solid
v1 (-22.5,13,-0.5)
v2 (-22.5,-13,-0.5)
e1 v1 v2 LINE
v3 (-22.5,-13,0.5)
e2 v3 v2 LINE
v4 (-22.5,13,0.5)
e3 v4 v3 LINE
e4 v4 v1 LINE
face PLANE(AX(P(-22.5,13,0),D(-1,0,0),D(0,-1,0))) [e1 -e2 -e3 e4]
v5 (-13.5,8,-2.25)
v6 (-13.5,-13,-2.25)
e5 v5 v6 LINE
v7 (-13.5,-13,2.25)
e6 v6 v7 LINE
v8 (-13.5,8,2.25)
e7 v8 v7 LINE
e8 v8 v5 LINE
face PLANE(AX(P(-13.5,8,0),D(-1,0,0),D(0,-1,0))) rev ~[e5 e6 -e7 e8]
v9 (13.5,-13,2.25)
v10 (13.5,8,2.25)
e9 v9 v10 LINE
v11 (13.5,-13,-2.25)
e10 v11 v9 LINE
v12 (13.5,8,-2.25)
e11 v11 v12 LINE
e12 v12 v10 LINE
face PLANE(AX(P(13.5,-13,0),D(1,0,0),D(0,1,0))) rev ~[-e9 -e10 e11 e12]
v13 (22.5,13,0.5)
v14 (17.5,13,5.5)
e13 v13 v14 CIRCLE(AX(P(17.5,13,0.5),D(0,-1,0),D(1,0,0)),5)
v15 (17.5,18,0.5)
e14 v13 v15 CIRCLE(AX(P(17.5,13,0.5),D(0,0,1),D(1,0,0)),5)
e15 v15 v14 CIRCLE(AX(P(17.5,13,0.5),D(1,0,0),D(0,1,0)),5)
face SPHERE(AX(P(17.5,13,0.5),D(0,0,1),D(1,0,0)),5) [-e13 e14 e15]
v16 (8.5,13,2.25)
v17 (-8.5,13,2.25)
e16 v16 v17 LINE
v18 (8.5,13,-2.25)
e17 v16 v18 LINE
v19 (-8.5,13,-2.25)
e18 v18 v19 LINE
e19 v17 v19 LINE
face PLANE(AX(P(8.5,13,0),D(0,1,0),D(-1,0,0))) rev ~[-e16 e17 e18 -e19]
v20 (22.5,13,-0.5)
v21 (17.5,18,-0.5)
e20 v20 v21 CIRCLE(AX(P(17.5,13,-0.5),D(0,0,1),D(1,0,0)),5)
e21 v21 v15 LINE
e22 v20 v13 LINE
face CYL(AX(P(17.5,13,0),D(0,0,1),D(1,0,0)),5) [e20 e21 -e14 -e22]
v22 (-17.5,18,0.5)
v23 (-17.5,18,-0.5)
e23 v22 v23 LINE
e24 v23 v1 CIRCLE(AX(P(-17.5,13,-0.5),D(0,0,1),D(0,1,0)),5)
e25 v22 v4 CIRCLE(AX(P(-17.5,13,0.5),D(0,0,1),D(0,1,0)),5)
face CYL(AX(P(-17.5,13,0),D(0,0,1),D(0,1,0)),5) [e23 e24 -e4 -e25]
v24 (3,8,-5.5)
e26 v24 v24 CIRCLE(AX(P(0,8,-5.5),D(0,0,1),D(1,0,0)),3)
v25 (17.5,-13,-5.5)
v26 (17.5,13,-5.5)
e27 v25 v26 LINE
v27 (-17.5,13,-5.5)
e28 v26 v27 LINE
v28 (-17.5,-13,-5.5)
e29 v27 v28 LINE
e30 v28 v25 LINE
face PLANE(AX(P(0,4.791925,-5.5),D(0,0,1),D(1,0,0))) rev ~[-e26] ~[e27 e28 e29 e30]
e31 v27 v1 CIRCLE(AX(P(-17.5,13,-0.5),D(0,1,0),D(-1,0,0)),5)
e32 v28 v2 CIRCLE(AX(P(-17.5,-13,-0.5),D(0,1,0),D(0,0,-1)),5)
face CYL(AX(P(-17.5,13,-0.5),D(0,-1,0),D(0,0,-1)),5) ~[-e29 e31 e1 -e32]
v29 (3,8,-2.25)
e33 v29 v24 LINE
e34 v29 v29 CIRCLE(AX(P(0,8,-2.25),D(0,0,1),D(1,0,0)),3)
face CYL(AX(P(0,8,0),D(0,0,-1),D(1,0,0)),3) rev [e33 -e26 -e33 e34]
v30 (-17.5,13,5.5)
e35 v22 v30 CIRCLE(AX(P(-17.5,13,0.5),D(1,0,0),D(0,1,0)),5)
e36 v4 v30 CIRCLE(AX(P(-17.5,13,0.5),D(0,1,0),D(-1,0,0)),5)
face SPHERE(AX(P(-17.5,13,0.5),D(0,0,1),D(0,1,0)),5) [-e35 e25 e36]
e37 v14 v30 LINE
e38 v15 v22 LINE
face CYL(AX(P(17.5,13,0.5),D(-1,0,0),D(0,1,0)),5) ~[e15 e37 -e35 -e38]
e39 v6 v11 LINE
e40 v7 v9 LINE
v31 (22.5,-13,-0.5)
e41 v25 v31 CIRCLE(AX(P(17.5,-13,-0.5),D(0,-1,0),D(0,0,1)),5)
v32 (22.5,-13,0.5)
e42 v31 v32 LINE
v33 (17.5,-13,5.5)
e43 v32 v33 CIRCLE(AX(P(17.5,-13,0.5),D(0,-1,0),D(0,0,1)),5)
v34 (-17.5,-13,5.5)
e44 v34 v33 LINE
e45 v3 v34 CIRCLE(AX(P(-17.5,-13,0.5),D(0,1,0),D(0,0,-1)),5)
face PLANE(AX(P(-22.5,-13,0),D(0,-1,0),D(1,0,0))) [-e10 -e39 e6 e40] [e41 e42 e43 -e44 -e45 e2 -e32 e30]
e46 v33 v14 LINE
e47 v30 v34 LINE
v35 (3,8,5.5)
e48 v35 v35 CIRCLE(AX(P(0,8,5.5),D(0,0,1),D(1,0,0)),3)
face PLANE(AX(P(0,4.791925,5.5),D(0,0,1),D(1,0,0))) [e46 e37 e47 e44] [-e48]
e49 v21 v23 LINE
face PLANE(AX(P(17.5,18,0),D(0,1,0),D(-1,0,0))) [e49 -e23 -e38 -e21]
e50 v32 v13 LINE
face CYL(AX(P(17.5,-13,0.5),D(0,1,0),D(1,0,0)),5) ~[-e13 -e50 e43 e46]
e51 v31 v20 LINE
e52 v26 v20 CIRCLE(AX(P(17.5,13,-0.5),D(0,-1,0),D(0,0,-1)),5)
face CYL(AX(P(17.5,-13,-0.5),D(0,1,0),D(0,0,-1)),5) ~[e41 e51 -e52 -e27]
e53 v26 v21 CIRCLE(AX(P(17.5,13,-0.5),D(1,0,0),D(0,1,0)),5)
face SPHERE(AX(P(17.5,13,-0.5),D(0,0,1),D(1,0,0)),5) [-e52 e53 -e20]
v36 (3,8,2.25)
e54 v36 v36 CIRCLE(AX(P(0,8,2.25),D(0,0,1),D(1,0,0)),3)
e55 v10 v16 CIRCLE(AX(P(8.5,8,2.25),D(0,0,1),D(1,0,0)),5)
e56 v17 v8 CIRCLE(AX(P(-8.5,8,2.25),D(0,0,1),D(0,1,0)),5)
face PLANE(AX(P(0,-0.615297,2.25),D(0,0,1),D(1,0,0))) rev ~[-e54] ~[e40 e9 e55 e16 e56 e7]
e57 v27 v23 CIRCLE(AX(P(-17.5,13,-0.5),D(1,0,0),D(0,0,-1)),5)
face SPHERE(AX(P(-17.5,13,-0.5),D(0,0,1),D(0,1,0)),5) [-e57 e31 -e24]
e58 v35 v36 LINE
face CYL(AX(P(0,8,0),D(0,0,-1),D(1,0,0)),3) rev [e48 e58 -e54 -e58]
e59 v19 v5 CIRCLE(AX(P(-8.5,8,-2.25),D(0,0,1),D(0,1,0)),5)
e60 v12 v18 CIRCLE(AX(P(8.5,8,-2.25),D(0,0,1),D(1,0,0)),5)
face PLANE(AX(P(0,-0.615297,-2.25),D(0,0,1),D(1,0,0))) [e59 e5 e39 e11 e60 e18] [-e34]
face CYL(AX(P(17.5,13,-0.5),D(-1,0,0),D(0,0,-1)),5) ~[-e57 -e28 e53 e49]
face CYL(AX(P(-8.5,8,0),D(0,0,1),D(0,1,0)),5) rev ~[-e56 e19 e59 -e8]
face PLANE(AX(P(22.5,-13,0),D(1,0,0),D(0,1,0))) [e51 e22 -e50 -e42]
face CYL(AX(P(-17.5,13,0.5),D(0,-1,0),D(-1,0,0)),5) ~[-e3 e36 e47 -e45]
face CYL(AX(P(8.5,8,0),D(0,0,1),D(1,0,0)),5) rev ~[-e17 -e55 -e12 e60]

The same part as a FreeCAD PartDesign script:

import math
import FreeCAD as App
import Part
import Sketcher

V = App.Vector


def edges_at(feature, points):
    """Names of the edges that pass closest to the given points."""
    edges = feature.Shape.Edges
    near = lambda p: min(range(len(edges)), key=lambda i: edges[i].distToShape(Part.Vertex(*p))[0])
    return sorted({f"Edge{near(p) + 1}" for p in points})

doc = App.newDocument("Part")
params = doc.addObject("Spreadsheet::Sheet", "Params")
for row, (alias, value) in enumerate([
    ("sketch1_diameter", "6 mm"),
    ("sketch1_radius", "5 mm"),
    ("sketch1_width", "45 mm"),
    ("sketch1_height", "26 mm"),
    ("pad1_length", "11 mm"),
    ("sketch2_diameter", "6 mm"),
    ("sketch2_radius", "5 mm"),
    ("sketch2_width", "27 mm"),
    ("sketch2_height", "21 mm"),
    ("pocket1_length", "4.5 mm"),
    ("fillet_radius", "5 mm"),
], start=1):
    params.set(f"A{row}", alias)
    params.set(f"B{row}", "=" + value)
    params.setAlias(f"B{row}", alias)

body = doc.addObject("PartDesign::Body", "Body")

# Sketch on XY plane
sketch1 = body.newObject("Sketcher::SketchObject", "Sketch")
sketch1.AttachmentSupport = (doc.getObject("XY_Plane"), [""])
sketch1.MapMode = "FlatFace"
sketch1.addGeometry([
    Part.LineSegment(V(-22.5, -13, 0), V(22.5, -13, 0)),  # 0
    Part.LineSegment(V(22.5, -13, 0), V(22.5, 13, 0)),  # 1
    Part.ArcOfCircle(Part.Circle(V(17.5, 13, 0), V(0, 0, 1), 5), math.radians(0), math.radians(90)),  # 2
    Part.LineSegment(V(17.5, 18, 0), V(-17.5, 18, 0)),  # 3
    Part.ArcOfCircle(Part.Circle(V(-17.5, 13, 0), V(0, 0, 1), 5), math.radians(90), math.radians(180)),  # 4
    Part.LineSegment(V(-22.5, 13, 0), V(-22.5, -13, 0)),  # 5
    Part.Circle(V(0, 8, 0), V(0, 0, 1), 3),  # 6
], False)
sketch1.addConstraint([
    Sketcher.Constraint("Coincident", 0, 2, 1, 1),
    Sketcher.Constraint("Tangent", 1, 2, 2, 1),
    Sketcher.Constraint("Tangent", 2, 2, 3, 1),
    Sketcher.Constraint("Tangent", 3, 2, 4, 1),
    Sketcher.Constraint("Tangent", 4, 2, 5, 1),
    Sketcher.Constraint("Coincident", 5, 2, 0, 1),
    Sketcher.Constraint("Horizontal", 0),
    Sketcher.Constraint("Vertical", 1),
    Sketcher.Constraint("Horizontal", 3),
    Sketcher.Constraint("Vertical", 5),
    Sketcher.Constraint("Equal", 2, 4),
    Sketcher.Constraint("Symmetric", 0, 2, 4, 2, -1, 1),
    Sketcher.Constraint("PointOnObject", 6, 3, -2),
    Sketcher.Constraint("Diameter", 6, 6.0),
    Sketcher.Constraint("Radius", 2, 5.0),
    Sketcher.Constraint("DistanceX", 0, 1, 0, 2, 45.0),
    Sketcher.Constraint("DistanceY", 1, 1, 1, 2, 26.0),
    Sketcher.Constraint("DistanceY", -1, 1, 6, 3, 8.0),
])
sketch1.setExpression("Constraints[13]", "Params.sketch1_diameter")
sketch1.setExpression("Constraints[14]", "Params.sketch1_radius")
sketch1.setExpression("Constraints[15]", "Params.sketch1_width")
sketch1.setExpression("Constraints[16]", "Params.sketch1_height")
pad1 = body.newObject("PartDesign::Pad", "Pad")
pad1.Profile = sketch1
pad1.setExpression("Length", "Params.pad1_length")
pad1.Midplane = True

# Sketch on XY plane
sketch2 = body.newObject("Sketcher::SketchObject", "Sketch001")
sketch2.AttachmentSupport = (doc.getObject("XY_Plane"), [""])
sketch2.MapMode = "FlatFace"
sketch2.addGeometry([
    Part.LineSegment(V(-13.5, 8, 0), V(-13.5, -13, 0)),  # 0
    Part.LineSegment(V(-13.5, -13, 0), V(13.5, -13, 0)),  # 1
    Part.LineSegment(V(13.5, -13, 0), V(13.5, 8, 0)),  # 2
    Part.ArcOfCircle(Part.Circle(V(8.5, 8, 0), V(0, 0, 1), 5), math.radians(0), math.radians(90)),  # 3
    Part.LineSegment(V(8.5, 13, 0), V(-8.5, 13, 0)),  # 4
    Part.ArcOfCircle(Part.Circle(V(-8.5, 8, 0), V(0, 0, 1), 5), math.radians(90), math.radians(180)),  # 5
    Part.Circle(V(0, 8, 0), V(0, 0, 1), 3),  # 6
], False)
sketch2.addConstraint([
    Sketcher.Constraint("Coincident", 0, 2, 1, 1),
    Sketcher.Constraint("Coincident", 1, 2, 2, 1),
    Sketcher.Constraint("Tangent", 2, 2, 3, 1),
    Sketcher.Constraint("Tangent", 3, 2, 4, 1),
    Sketcher.Constraint("Tangent", 4, 2, 5, 1),
    Sketcher.Constraint("Tangent", 5, 2, 0, 1),
    Sketcher.Constraint("Vertical", 0),
    Sketcher.Constraint("Horizontal", 1),
    Sketcher.Constraint("Vertical", 2),
    Sketcher.Constraint("Horizontal", 4),
    Sketcher.Constraint("Equal", 3, 5),
    Sketcher.Constraint("PointOnObject", 6, 3, -2),
    Sketcher.Constraint("Horizontal", 5, 3, 6, 3),
    Sketcher.Constraint("Diameter", 6, 6.0),
    Sketcher.Constraint("Radius", 3, 5.0),
    Sketcher.Constraint("DistanceX", 1, 1, 1, 2, 27.0),
    Sketcher.Constraint("DistanceY", 0, 2, 0, 1, 21.0),
    Sketcher.Constraint("DistanceY", -1, 1, 3, 3, 8.0),
    Sketcher.Constraint("DistanceX", -1, 1, 3, 3, 8.5),
])
sketch2.setExpression("Constraints[13]", "Params.sketch2_diameter")
sketch2.setExpression("Constraints[14]", "Params.sketch2_radius")
sketch2.setExpression("Constraints[15]", "Params.sketch2_width")
sketch2.setExpression("Constraints[16]", "Params.sketch2_height")
pocket1 = body.newObject("PartDesign::Pocket", "Pocket")
pocket1.Profile = sketch2
pocket1.setExpression("Length", "Params.pocket1_length")
pocket1.Midplane = True
doc.recompute()

fillet = body.newObject("PartDesign::Fillet", "Fillet")
fillet.Base = (pocket1, edges_at(pocket1, [
    (-22.5, 0, 5.5),
    (-21.036, 16.536, 5.5),
    (0, 18, 5.5),
    (21.036, 16.536, 5.5),
    (22.5, 0, 5.5),
    (22.5, 0, -5.5),
]))
fillet.setExpression("Radius", "Params.fillet_radius")

doc.recompute()
